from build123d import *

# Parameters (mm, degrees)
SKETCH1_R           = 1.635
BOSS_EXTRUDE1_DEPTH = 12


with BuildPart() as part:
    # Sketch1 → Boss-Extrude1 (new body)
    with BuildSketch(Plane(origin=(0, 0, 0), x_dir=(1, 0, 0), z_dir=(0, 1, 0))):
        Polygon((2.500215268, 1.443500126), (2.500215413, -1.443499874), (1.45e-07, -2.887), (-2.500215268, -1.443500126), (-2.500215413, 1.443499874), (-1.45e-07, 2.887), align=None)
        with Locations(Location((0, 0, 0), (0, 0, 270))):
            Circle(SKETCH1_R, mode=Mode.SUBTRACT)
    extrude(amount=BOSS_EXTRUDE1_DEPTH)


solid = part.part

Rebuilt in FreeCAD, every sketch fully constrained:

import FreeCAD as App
import Part
import Sketcher
Q = App.Units.Quantity

doc = App.newDocument("Part")
body = doc.addObject("PartDesign::Body", "Body")

sketch1 = body.newObject("Sketcher::SketchObject", "Sketch")
sketch1.AttachmentSupport = (doc.getObject("XZ_Plane"), [""])
sketch1.MapMode = "FlatFace"
sketch1.addGeometry([
    Part.LineSegment(App.Vector(2.5, 1.4, 0), App.Vector(2.5, -1.4, 0)),
    Part.LineSegment(App.Vector(2.5, -1.4, 0), App.Vector(0, -2.9, 0)),
    Part.LineSegment(App.Vector(0, -2.9, 0), App.Vector(-2.5, -1.4, 0)),
    Part.LineSegment(App.Vector(-2.5, -1.4, 0), App.Vector(-2.5, 1.4, 0)),
    Part.LineSegment(App.Vector(-2.5, 1.4, 0), App.Vector(0, 2.9, 0)),
    Part.LineSegment(App.Vector(0, 2.9, 0), App.Vector(2.5, 1.4, 0)),
    Part.Circle(App.Vector(0, 0, 0), App.Vector(0, 0, 1), 1.6),
], False)
sketch1.addConstraint([
    Sketcher.Constraint("Coincident", 0, 2, 1, 1),
    Sketcher.Constraint("Coincident", 1, 2, 2, 1),
    Sketcher.Constraint("Coincident", 2, 2, 3, 1),
    Sketcher.Constraint("Coincident", 3, 2, 4, 1),
    Sketcher.Constraint("Coincident", 4, 2, 5, 1),
    Sketcher.Constraint("Coincident", 5, 2, 0, 1),
    Sketcher.Constraint("Vertical", 0),
    Sketcher.Constraint("Vertical", 3),
    Sketcher.Constraint("Coincident", 6, 3, -1, 1),
    Sketcher.Constraint("Symmetric", 0, 2, 3, 2, -1, 1),
    Sketcher.Constraint("Symmetric", 1, 2, 4, 2, -1, 1),
    Sketcher.Constraint("PointOnObject", 1, 2, -2),
    Sketcher.Constraint("Parallel", 2, 5),
    Sketcher.Constraint("Horizontal", 0, 2, 2, 2),
    Sketcher.Constraint("Diameter", 6, Q("3.27 mm")),
    Sketcher.Constraint("Angle", 1, Q("-150.000003 deg")),
    Sketcher.Constraint("DistanceY", 0, 2, 0, 1, Q("2.887 mm")),
    Sketcher.Constraint("Distance", 1, Q("2.887 mm")),
])
pad1 = body.newObject("PartDesign::Pad", "Pad")
pad1.Profile = sketch1
pad1.Length = 12
pad1.Reversed = True

doc.recompute()
